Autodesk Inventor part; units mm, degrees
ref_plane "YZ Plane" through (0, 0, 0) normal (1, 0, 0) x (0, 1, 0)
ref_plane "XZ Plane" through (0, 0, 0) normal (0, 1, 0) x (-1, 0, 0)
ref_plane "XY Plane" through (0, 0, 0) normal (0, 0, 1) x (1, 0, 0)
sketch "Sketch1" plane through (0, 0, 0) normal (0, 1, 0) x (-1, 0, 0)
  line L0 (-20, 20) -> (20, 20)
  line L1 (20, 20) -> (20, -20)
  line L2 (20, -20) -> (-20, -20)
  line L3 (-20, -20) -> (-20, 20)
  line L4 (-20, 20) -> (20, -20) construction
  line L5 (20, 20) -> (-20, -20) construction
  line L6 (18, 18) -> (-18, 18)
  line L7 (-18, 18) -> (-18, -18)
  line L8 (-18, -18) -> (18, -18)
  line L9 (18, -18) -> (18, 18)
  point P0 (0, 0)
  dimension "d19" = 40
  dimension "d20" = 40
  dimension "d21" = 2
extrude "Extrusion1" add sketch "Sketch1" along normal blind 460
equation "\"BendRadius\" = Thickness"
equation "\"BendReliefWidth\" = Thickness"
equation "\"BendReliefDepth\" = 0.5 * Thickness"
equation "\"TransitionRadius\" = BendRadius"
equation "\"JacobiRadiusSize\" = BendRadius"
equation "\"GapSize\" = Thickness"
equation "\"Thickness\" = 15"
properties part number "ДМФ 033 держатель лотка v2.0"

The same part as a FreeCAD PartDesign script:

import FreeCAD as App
import Part
import Sketcher
from FreeCAD import Vector
Q = App.Units.Quantity


def add_polygon(sketch, points):
    """Adds a closed chain of lines whose ends are joined by coincident constraints."""
    first, n = sketch.GeometryCount, len(points)
    for a, b in zip(points, points[1:] + points[:1]):
        sketch.addGeometry(Part.LineSegment(App.Vector(*a, 0), App.Vector(*b, 0)), False)
    for i in range(n):
        sketch.addConstraint(Sketcher.Constraint("Coincident", first + i, 2, first + (i + 1) % n, 1))

doc = App.newDocument("Part")
body = doc.addObject("PartDesign::Body", "Body")

# Sketch on XZ plane
sketch1 = doc.addObject("Sketcher::SketchObject", "Sketch")
body.addObject(sketch1)
sketch1.AttachmentSupport = (doc.XZ_Plane, [""])
sketch1.MapMode = "FlatFace"
add_polygon(sketch1, [(-20, 20), (20, 20), (20, -20), (-20, -20)])  # lines 0-3
add_polygon(sketch1, [(18, 18), (-18, 18), (-18, -18), (18, -18)])  # lines 4-7
sketch1.addConstraint([
    Sketcher.Constraint("Horizontal", 0),
    Sketcher.Constraint("Vertical", 1),
    Sketcher.Constraint("Horizontal", 2),
    Sketcher.Constraint("Vertical", 3),
    Sketcher.Constraint("Horizontal", 4),
    Sketcher.Constraint("Vertical", 5),
    Sketcher.Constraint("Horizontal", 6),
    Sketcher.Constraint("Vertical", 7),
    Sketcher.Constraint("Symmetric", 0, 2, 2, 2, -1, 1),
    Sketcher.Constraint("Symmetric", 4, 2, 6, 2, -1, 1),
    Sketcher.Constraint("Equal", 2, 1),
    Sketcher.Constraint("Equal", 6, 5),
    Sketcher.Constraint("DistanceX", 0, 1, 0, 2, Q("40 mm")),
    Sketcher.Constraint("DistanceX", 3, 2, 4, 2, Q("2 mm")),
])
pad1 = doc.addObject("PartDesign::Pad", "Pad")
body.addObject(pad1)
pad1.Profile = sketch1
pad1.Length = 460
pad1.Reversed = True

doc.recompute()
